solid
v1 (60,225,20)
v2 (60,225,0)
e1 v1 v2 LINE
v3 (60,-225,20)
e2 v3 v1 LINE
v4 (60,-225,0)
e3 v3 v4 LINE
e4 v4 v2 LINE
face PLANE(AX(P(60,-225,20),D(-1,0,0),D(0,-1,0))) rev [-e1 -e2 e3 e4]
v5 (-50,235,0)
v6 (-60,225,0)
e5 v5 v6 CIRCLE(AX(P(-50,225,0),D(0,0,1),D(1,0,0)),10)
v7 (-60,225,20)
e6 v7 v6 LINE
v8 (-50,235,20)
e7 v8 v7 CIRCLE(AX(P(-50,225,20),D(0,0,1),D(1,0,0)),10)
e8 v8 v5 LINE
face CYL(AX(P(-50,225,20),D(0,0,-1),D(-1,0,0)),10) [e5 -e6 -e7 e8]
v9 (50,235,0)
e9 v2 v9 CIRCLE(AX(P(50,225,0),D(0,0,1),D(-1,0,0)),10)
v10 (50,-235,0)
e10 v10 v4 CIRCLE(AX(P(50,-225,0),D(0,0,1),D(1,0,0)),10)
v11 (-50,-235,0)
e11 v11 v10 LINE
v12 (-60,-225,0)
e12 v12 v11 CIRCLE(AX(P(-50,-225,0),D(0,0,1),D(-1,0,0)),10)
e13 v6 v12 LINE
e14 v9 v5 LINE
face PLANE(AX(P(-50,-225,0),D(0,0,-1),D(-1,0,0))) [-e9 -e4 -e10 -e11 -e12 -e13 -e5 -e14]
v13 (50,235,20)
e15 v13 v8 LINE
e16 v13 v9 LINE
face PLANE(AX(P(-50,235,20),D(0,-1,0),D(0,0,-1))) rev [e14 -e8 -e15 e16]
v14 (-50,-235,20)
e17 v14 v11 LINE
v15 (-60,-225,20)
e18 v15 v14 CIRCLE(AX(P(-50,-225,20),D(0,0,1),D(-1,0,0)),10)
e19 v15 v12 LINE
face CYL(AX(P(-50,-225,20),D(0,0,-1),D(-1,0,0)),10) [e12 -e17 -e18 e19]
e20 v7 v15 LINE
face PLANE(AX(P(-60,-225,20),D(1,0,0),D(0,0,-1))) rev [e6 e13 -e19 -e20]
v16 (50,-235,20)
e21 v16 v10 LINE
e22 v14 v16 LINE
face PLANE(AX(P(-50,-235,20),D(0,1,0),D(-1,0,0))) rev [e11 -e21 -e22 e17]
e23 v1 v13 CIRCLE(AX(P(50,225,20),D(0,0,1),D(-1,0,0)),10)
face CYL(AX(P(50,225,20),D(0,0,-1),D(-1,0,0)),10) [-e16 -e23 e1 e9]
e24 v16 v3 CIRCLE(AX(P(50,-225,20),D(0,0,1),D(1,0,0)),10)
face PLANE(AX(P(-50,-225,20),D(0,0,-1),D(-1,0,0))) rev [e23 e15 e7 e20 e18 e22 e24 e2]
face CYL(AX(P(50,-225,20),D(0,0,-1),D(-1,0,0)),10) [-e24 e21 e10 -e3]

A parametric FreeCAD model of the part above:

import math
import FreeCAD as App
import Part
import Sketcher
from FreeCAD import Vector

doc = App.newDocument("Part")
params = doc.addObject("Spreadsheet::Sheet", "Params")
for row, (alias, value) in enumerate([
    ("sketch1_radius", "10 mm"),
    ("sketch1_width", "100 mm"),
    ("sketch1_height", "450 mm"),
    ("pad1_length", "20 mm"),
], start=1):
    params.set(f"A{row}", alias)
    params.set(f"B{row}", "=" + value)
    params.setAlias(f"B{row}", alias)

body = doc.addObject("PartDesign::Body", "Body")

sketch1 = body.newObject("Sketcher::SketchObject", "Sketch")
sketch1.AttachmentSupport = (doc.getObject("XY_Plane"), [""])
sketch1.MapMode = "FlatFace"
sketch1.addGeometry([
    Part.LineSegment(Vector(-50, -235, 0), Vector(50, -235, 0)),
    Part.ArcOfCircle(Part.Circle(Vector(50, -225, 0), Vector(0, 0, 1), 10), math.radians(-90), math.radians(0)),
    Part.LineSegment(Vector(60, -225, 0), Vector(60, 225, 0)),
    Part.ArcOfCircle(Part.Circle(Vector(50, 225, 0), Vector(0, 0, 1), 10), math.radians(0), math.radians(90)),
    Part.LineSegment(Vector(50, 235, 0), Vector(-50, 235, 0)),
    Part.ArcOfCircle(Part.Circle(Vector(-50, 225, 0), Vector(0, 0, 1), 10), math.radians(90), math.radians(180)),
    Part.LineSegment(Vector(-60, 225, 0), Vector(-60, -225, 0)),
    Part.ArcOfCircle(Part.Circle(Vector(-50, -225, 0), Vector(0, 0, 1), 10), math.radians(180), math.radians(270)),
], False)
sketch1.addConstraint([
    Sketcher.Constraint("Tangent", 0, 2, 1, 1),
    Sketcher.Constraint("Tangent", 1, 2, 2, 1),
    Sketcher.Constraint("Tangent", 2, 2, 3, 1),
    Sketcher.Constraint("Tangent", 3, 2, 4, 1),
    Sketcher.Constraint("Tangent", 4, 2, 5, 1),
    Sketcher.Constraint("Tangent", 5, 2, 6, 1),
    Sketcher.Constraint("Tangent", 6, 2, 7, 1),
    Sketcher.Constraint("Tangent", 7, 2, 0, 1),
    Sketcher.Constraint("Horizontal", 0),
    Sketcher.Constraint("Vertical", 2),
    Sketcher.Constraint("Horizontal", 4),
    Sketcher.Constraint("Vertical", 6),
    Sketcher.Constraint("Equal", 1, 3),
    Sketcher.Constraint("Equal", 3, 5),
    Sketcher.Constraint("Equal", 5, 7),
    Sketcher.Constraint("Symmetric", 1, 3, 5, 3, -1, 1),
    Sketcher.Constraint("Radius", 1, 10.0),
    Sketcher.Constraint("DistanceX", 0, 1, 0, 2, 100.0),
    Sketcher.Constraint("DistanceY", 2, 1, 2, 2, 450.0),
])
sketch1.setExpression("Constraints[16]", "Params.sketch1_radius")
sketch1.setExpression("Constraints[17]", "Params.sketch1_width")
sketch1.setExpression("Constraints[18]", "Params.sketch1_height")
pad1 = body.newObject("PartDesign::Pad", "Pad")
pad1.Profile = sketch1
pad1.setExpression("Length", "Params.pad1_length")

doc.recompute()
